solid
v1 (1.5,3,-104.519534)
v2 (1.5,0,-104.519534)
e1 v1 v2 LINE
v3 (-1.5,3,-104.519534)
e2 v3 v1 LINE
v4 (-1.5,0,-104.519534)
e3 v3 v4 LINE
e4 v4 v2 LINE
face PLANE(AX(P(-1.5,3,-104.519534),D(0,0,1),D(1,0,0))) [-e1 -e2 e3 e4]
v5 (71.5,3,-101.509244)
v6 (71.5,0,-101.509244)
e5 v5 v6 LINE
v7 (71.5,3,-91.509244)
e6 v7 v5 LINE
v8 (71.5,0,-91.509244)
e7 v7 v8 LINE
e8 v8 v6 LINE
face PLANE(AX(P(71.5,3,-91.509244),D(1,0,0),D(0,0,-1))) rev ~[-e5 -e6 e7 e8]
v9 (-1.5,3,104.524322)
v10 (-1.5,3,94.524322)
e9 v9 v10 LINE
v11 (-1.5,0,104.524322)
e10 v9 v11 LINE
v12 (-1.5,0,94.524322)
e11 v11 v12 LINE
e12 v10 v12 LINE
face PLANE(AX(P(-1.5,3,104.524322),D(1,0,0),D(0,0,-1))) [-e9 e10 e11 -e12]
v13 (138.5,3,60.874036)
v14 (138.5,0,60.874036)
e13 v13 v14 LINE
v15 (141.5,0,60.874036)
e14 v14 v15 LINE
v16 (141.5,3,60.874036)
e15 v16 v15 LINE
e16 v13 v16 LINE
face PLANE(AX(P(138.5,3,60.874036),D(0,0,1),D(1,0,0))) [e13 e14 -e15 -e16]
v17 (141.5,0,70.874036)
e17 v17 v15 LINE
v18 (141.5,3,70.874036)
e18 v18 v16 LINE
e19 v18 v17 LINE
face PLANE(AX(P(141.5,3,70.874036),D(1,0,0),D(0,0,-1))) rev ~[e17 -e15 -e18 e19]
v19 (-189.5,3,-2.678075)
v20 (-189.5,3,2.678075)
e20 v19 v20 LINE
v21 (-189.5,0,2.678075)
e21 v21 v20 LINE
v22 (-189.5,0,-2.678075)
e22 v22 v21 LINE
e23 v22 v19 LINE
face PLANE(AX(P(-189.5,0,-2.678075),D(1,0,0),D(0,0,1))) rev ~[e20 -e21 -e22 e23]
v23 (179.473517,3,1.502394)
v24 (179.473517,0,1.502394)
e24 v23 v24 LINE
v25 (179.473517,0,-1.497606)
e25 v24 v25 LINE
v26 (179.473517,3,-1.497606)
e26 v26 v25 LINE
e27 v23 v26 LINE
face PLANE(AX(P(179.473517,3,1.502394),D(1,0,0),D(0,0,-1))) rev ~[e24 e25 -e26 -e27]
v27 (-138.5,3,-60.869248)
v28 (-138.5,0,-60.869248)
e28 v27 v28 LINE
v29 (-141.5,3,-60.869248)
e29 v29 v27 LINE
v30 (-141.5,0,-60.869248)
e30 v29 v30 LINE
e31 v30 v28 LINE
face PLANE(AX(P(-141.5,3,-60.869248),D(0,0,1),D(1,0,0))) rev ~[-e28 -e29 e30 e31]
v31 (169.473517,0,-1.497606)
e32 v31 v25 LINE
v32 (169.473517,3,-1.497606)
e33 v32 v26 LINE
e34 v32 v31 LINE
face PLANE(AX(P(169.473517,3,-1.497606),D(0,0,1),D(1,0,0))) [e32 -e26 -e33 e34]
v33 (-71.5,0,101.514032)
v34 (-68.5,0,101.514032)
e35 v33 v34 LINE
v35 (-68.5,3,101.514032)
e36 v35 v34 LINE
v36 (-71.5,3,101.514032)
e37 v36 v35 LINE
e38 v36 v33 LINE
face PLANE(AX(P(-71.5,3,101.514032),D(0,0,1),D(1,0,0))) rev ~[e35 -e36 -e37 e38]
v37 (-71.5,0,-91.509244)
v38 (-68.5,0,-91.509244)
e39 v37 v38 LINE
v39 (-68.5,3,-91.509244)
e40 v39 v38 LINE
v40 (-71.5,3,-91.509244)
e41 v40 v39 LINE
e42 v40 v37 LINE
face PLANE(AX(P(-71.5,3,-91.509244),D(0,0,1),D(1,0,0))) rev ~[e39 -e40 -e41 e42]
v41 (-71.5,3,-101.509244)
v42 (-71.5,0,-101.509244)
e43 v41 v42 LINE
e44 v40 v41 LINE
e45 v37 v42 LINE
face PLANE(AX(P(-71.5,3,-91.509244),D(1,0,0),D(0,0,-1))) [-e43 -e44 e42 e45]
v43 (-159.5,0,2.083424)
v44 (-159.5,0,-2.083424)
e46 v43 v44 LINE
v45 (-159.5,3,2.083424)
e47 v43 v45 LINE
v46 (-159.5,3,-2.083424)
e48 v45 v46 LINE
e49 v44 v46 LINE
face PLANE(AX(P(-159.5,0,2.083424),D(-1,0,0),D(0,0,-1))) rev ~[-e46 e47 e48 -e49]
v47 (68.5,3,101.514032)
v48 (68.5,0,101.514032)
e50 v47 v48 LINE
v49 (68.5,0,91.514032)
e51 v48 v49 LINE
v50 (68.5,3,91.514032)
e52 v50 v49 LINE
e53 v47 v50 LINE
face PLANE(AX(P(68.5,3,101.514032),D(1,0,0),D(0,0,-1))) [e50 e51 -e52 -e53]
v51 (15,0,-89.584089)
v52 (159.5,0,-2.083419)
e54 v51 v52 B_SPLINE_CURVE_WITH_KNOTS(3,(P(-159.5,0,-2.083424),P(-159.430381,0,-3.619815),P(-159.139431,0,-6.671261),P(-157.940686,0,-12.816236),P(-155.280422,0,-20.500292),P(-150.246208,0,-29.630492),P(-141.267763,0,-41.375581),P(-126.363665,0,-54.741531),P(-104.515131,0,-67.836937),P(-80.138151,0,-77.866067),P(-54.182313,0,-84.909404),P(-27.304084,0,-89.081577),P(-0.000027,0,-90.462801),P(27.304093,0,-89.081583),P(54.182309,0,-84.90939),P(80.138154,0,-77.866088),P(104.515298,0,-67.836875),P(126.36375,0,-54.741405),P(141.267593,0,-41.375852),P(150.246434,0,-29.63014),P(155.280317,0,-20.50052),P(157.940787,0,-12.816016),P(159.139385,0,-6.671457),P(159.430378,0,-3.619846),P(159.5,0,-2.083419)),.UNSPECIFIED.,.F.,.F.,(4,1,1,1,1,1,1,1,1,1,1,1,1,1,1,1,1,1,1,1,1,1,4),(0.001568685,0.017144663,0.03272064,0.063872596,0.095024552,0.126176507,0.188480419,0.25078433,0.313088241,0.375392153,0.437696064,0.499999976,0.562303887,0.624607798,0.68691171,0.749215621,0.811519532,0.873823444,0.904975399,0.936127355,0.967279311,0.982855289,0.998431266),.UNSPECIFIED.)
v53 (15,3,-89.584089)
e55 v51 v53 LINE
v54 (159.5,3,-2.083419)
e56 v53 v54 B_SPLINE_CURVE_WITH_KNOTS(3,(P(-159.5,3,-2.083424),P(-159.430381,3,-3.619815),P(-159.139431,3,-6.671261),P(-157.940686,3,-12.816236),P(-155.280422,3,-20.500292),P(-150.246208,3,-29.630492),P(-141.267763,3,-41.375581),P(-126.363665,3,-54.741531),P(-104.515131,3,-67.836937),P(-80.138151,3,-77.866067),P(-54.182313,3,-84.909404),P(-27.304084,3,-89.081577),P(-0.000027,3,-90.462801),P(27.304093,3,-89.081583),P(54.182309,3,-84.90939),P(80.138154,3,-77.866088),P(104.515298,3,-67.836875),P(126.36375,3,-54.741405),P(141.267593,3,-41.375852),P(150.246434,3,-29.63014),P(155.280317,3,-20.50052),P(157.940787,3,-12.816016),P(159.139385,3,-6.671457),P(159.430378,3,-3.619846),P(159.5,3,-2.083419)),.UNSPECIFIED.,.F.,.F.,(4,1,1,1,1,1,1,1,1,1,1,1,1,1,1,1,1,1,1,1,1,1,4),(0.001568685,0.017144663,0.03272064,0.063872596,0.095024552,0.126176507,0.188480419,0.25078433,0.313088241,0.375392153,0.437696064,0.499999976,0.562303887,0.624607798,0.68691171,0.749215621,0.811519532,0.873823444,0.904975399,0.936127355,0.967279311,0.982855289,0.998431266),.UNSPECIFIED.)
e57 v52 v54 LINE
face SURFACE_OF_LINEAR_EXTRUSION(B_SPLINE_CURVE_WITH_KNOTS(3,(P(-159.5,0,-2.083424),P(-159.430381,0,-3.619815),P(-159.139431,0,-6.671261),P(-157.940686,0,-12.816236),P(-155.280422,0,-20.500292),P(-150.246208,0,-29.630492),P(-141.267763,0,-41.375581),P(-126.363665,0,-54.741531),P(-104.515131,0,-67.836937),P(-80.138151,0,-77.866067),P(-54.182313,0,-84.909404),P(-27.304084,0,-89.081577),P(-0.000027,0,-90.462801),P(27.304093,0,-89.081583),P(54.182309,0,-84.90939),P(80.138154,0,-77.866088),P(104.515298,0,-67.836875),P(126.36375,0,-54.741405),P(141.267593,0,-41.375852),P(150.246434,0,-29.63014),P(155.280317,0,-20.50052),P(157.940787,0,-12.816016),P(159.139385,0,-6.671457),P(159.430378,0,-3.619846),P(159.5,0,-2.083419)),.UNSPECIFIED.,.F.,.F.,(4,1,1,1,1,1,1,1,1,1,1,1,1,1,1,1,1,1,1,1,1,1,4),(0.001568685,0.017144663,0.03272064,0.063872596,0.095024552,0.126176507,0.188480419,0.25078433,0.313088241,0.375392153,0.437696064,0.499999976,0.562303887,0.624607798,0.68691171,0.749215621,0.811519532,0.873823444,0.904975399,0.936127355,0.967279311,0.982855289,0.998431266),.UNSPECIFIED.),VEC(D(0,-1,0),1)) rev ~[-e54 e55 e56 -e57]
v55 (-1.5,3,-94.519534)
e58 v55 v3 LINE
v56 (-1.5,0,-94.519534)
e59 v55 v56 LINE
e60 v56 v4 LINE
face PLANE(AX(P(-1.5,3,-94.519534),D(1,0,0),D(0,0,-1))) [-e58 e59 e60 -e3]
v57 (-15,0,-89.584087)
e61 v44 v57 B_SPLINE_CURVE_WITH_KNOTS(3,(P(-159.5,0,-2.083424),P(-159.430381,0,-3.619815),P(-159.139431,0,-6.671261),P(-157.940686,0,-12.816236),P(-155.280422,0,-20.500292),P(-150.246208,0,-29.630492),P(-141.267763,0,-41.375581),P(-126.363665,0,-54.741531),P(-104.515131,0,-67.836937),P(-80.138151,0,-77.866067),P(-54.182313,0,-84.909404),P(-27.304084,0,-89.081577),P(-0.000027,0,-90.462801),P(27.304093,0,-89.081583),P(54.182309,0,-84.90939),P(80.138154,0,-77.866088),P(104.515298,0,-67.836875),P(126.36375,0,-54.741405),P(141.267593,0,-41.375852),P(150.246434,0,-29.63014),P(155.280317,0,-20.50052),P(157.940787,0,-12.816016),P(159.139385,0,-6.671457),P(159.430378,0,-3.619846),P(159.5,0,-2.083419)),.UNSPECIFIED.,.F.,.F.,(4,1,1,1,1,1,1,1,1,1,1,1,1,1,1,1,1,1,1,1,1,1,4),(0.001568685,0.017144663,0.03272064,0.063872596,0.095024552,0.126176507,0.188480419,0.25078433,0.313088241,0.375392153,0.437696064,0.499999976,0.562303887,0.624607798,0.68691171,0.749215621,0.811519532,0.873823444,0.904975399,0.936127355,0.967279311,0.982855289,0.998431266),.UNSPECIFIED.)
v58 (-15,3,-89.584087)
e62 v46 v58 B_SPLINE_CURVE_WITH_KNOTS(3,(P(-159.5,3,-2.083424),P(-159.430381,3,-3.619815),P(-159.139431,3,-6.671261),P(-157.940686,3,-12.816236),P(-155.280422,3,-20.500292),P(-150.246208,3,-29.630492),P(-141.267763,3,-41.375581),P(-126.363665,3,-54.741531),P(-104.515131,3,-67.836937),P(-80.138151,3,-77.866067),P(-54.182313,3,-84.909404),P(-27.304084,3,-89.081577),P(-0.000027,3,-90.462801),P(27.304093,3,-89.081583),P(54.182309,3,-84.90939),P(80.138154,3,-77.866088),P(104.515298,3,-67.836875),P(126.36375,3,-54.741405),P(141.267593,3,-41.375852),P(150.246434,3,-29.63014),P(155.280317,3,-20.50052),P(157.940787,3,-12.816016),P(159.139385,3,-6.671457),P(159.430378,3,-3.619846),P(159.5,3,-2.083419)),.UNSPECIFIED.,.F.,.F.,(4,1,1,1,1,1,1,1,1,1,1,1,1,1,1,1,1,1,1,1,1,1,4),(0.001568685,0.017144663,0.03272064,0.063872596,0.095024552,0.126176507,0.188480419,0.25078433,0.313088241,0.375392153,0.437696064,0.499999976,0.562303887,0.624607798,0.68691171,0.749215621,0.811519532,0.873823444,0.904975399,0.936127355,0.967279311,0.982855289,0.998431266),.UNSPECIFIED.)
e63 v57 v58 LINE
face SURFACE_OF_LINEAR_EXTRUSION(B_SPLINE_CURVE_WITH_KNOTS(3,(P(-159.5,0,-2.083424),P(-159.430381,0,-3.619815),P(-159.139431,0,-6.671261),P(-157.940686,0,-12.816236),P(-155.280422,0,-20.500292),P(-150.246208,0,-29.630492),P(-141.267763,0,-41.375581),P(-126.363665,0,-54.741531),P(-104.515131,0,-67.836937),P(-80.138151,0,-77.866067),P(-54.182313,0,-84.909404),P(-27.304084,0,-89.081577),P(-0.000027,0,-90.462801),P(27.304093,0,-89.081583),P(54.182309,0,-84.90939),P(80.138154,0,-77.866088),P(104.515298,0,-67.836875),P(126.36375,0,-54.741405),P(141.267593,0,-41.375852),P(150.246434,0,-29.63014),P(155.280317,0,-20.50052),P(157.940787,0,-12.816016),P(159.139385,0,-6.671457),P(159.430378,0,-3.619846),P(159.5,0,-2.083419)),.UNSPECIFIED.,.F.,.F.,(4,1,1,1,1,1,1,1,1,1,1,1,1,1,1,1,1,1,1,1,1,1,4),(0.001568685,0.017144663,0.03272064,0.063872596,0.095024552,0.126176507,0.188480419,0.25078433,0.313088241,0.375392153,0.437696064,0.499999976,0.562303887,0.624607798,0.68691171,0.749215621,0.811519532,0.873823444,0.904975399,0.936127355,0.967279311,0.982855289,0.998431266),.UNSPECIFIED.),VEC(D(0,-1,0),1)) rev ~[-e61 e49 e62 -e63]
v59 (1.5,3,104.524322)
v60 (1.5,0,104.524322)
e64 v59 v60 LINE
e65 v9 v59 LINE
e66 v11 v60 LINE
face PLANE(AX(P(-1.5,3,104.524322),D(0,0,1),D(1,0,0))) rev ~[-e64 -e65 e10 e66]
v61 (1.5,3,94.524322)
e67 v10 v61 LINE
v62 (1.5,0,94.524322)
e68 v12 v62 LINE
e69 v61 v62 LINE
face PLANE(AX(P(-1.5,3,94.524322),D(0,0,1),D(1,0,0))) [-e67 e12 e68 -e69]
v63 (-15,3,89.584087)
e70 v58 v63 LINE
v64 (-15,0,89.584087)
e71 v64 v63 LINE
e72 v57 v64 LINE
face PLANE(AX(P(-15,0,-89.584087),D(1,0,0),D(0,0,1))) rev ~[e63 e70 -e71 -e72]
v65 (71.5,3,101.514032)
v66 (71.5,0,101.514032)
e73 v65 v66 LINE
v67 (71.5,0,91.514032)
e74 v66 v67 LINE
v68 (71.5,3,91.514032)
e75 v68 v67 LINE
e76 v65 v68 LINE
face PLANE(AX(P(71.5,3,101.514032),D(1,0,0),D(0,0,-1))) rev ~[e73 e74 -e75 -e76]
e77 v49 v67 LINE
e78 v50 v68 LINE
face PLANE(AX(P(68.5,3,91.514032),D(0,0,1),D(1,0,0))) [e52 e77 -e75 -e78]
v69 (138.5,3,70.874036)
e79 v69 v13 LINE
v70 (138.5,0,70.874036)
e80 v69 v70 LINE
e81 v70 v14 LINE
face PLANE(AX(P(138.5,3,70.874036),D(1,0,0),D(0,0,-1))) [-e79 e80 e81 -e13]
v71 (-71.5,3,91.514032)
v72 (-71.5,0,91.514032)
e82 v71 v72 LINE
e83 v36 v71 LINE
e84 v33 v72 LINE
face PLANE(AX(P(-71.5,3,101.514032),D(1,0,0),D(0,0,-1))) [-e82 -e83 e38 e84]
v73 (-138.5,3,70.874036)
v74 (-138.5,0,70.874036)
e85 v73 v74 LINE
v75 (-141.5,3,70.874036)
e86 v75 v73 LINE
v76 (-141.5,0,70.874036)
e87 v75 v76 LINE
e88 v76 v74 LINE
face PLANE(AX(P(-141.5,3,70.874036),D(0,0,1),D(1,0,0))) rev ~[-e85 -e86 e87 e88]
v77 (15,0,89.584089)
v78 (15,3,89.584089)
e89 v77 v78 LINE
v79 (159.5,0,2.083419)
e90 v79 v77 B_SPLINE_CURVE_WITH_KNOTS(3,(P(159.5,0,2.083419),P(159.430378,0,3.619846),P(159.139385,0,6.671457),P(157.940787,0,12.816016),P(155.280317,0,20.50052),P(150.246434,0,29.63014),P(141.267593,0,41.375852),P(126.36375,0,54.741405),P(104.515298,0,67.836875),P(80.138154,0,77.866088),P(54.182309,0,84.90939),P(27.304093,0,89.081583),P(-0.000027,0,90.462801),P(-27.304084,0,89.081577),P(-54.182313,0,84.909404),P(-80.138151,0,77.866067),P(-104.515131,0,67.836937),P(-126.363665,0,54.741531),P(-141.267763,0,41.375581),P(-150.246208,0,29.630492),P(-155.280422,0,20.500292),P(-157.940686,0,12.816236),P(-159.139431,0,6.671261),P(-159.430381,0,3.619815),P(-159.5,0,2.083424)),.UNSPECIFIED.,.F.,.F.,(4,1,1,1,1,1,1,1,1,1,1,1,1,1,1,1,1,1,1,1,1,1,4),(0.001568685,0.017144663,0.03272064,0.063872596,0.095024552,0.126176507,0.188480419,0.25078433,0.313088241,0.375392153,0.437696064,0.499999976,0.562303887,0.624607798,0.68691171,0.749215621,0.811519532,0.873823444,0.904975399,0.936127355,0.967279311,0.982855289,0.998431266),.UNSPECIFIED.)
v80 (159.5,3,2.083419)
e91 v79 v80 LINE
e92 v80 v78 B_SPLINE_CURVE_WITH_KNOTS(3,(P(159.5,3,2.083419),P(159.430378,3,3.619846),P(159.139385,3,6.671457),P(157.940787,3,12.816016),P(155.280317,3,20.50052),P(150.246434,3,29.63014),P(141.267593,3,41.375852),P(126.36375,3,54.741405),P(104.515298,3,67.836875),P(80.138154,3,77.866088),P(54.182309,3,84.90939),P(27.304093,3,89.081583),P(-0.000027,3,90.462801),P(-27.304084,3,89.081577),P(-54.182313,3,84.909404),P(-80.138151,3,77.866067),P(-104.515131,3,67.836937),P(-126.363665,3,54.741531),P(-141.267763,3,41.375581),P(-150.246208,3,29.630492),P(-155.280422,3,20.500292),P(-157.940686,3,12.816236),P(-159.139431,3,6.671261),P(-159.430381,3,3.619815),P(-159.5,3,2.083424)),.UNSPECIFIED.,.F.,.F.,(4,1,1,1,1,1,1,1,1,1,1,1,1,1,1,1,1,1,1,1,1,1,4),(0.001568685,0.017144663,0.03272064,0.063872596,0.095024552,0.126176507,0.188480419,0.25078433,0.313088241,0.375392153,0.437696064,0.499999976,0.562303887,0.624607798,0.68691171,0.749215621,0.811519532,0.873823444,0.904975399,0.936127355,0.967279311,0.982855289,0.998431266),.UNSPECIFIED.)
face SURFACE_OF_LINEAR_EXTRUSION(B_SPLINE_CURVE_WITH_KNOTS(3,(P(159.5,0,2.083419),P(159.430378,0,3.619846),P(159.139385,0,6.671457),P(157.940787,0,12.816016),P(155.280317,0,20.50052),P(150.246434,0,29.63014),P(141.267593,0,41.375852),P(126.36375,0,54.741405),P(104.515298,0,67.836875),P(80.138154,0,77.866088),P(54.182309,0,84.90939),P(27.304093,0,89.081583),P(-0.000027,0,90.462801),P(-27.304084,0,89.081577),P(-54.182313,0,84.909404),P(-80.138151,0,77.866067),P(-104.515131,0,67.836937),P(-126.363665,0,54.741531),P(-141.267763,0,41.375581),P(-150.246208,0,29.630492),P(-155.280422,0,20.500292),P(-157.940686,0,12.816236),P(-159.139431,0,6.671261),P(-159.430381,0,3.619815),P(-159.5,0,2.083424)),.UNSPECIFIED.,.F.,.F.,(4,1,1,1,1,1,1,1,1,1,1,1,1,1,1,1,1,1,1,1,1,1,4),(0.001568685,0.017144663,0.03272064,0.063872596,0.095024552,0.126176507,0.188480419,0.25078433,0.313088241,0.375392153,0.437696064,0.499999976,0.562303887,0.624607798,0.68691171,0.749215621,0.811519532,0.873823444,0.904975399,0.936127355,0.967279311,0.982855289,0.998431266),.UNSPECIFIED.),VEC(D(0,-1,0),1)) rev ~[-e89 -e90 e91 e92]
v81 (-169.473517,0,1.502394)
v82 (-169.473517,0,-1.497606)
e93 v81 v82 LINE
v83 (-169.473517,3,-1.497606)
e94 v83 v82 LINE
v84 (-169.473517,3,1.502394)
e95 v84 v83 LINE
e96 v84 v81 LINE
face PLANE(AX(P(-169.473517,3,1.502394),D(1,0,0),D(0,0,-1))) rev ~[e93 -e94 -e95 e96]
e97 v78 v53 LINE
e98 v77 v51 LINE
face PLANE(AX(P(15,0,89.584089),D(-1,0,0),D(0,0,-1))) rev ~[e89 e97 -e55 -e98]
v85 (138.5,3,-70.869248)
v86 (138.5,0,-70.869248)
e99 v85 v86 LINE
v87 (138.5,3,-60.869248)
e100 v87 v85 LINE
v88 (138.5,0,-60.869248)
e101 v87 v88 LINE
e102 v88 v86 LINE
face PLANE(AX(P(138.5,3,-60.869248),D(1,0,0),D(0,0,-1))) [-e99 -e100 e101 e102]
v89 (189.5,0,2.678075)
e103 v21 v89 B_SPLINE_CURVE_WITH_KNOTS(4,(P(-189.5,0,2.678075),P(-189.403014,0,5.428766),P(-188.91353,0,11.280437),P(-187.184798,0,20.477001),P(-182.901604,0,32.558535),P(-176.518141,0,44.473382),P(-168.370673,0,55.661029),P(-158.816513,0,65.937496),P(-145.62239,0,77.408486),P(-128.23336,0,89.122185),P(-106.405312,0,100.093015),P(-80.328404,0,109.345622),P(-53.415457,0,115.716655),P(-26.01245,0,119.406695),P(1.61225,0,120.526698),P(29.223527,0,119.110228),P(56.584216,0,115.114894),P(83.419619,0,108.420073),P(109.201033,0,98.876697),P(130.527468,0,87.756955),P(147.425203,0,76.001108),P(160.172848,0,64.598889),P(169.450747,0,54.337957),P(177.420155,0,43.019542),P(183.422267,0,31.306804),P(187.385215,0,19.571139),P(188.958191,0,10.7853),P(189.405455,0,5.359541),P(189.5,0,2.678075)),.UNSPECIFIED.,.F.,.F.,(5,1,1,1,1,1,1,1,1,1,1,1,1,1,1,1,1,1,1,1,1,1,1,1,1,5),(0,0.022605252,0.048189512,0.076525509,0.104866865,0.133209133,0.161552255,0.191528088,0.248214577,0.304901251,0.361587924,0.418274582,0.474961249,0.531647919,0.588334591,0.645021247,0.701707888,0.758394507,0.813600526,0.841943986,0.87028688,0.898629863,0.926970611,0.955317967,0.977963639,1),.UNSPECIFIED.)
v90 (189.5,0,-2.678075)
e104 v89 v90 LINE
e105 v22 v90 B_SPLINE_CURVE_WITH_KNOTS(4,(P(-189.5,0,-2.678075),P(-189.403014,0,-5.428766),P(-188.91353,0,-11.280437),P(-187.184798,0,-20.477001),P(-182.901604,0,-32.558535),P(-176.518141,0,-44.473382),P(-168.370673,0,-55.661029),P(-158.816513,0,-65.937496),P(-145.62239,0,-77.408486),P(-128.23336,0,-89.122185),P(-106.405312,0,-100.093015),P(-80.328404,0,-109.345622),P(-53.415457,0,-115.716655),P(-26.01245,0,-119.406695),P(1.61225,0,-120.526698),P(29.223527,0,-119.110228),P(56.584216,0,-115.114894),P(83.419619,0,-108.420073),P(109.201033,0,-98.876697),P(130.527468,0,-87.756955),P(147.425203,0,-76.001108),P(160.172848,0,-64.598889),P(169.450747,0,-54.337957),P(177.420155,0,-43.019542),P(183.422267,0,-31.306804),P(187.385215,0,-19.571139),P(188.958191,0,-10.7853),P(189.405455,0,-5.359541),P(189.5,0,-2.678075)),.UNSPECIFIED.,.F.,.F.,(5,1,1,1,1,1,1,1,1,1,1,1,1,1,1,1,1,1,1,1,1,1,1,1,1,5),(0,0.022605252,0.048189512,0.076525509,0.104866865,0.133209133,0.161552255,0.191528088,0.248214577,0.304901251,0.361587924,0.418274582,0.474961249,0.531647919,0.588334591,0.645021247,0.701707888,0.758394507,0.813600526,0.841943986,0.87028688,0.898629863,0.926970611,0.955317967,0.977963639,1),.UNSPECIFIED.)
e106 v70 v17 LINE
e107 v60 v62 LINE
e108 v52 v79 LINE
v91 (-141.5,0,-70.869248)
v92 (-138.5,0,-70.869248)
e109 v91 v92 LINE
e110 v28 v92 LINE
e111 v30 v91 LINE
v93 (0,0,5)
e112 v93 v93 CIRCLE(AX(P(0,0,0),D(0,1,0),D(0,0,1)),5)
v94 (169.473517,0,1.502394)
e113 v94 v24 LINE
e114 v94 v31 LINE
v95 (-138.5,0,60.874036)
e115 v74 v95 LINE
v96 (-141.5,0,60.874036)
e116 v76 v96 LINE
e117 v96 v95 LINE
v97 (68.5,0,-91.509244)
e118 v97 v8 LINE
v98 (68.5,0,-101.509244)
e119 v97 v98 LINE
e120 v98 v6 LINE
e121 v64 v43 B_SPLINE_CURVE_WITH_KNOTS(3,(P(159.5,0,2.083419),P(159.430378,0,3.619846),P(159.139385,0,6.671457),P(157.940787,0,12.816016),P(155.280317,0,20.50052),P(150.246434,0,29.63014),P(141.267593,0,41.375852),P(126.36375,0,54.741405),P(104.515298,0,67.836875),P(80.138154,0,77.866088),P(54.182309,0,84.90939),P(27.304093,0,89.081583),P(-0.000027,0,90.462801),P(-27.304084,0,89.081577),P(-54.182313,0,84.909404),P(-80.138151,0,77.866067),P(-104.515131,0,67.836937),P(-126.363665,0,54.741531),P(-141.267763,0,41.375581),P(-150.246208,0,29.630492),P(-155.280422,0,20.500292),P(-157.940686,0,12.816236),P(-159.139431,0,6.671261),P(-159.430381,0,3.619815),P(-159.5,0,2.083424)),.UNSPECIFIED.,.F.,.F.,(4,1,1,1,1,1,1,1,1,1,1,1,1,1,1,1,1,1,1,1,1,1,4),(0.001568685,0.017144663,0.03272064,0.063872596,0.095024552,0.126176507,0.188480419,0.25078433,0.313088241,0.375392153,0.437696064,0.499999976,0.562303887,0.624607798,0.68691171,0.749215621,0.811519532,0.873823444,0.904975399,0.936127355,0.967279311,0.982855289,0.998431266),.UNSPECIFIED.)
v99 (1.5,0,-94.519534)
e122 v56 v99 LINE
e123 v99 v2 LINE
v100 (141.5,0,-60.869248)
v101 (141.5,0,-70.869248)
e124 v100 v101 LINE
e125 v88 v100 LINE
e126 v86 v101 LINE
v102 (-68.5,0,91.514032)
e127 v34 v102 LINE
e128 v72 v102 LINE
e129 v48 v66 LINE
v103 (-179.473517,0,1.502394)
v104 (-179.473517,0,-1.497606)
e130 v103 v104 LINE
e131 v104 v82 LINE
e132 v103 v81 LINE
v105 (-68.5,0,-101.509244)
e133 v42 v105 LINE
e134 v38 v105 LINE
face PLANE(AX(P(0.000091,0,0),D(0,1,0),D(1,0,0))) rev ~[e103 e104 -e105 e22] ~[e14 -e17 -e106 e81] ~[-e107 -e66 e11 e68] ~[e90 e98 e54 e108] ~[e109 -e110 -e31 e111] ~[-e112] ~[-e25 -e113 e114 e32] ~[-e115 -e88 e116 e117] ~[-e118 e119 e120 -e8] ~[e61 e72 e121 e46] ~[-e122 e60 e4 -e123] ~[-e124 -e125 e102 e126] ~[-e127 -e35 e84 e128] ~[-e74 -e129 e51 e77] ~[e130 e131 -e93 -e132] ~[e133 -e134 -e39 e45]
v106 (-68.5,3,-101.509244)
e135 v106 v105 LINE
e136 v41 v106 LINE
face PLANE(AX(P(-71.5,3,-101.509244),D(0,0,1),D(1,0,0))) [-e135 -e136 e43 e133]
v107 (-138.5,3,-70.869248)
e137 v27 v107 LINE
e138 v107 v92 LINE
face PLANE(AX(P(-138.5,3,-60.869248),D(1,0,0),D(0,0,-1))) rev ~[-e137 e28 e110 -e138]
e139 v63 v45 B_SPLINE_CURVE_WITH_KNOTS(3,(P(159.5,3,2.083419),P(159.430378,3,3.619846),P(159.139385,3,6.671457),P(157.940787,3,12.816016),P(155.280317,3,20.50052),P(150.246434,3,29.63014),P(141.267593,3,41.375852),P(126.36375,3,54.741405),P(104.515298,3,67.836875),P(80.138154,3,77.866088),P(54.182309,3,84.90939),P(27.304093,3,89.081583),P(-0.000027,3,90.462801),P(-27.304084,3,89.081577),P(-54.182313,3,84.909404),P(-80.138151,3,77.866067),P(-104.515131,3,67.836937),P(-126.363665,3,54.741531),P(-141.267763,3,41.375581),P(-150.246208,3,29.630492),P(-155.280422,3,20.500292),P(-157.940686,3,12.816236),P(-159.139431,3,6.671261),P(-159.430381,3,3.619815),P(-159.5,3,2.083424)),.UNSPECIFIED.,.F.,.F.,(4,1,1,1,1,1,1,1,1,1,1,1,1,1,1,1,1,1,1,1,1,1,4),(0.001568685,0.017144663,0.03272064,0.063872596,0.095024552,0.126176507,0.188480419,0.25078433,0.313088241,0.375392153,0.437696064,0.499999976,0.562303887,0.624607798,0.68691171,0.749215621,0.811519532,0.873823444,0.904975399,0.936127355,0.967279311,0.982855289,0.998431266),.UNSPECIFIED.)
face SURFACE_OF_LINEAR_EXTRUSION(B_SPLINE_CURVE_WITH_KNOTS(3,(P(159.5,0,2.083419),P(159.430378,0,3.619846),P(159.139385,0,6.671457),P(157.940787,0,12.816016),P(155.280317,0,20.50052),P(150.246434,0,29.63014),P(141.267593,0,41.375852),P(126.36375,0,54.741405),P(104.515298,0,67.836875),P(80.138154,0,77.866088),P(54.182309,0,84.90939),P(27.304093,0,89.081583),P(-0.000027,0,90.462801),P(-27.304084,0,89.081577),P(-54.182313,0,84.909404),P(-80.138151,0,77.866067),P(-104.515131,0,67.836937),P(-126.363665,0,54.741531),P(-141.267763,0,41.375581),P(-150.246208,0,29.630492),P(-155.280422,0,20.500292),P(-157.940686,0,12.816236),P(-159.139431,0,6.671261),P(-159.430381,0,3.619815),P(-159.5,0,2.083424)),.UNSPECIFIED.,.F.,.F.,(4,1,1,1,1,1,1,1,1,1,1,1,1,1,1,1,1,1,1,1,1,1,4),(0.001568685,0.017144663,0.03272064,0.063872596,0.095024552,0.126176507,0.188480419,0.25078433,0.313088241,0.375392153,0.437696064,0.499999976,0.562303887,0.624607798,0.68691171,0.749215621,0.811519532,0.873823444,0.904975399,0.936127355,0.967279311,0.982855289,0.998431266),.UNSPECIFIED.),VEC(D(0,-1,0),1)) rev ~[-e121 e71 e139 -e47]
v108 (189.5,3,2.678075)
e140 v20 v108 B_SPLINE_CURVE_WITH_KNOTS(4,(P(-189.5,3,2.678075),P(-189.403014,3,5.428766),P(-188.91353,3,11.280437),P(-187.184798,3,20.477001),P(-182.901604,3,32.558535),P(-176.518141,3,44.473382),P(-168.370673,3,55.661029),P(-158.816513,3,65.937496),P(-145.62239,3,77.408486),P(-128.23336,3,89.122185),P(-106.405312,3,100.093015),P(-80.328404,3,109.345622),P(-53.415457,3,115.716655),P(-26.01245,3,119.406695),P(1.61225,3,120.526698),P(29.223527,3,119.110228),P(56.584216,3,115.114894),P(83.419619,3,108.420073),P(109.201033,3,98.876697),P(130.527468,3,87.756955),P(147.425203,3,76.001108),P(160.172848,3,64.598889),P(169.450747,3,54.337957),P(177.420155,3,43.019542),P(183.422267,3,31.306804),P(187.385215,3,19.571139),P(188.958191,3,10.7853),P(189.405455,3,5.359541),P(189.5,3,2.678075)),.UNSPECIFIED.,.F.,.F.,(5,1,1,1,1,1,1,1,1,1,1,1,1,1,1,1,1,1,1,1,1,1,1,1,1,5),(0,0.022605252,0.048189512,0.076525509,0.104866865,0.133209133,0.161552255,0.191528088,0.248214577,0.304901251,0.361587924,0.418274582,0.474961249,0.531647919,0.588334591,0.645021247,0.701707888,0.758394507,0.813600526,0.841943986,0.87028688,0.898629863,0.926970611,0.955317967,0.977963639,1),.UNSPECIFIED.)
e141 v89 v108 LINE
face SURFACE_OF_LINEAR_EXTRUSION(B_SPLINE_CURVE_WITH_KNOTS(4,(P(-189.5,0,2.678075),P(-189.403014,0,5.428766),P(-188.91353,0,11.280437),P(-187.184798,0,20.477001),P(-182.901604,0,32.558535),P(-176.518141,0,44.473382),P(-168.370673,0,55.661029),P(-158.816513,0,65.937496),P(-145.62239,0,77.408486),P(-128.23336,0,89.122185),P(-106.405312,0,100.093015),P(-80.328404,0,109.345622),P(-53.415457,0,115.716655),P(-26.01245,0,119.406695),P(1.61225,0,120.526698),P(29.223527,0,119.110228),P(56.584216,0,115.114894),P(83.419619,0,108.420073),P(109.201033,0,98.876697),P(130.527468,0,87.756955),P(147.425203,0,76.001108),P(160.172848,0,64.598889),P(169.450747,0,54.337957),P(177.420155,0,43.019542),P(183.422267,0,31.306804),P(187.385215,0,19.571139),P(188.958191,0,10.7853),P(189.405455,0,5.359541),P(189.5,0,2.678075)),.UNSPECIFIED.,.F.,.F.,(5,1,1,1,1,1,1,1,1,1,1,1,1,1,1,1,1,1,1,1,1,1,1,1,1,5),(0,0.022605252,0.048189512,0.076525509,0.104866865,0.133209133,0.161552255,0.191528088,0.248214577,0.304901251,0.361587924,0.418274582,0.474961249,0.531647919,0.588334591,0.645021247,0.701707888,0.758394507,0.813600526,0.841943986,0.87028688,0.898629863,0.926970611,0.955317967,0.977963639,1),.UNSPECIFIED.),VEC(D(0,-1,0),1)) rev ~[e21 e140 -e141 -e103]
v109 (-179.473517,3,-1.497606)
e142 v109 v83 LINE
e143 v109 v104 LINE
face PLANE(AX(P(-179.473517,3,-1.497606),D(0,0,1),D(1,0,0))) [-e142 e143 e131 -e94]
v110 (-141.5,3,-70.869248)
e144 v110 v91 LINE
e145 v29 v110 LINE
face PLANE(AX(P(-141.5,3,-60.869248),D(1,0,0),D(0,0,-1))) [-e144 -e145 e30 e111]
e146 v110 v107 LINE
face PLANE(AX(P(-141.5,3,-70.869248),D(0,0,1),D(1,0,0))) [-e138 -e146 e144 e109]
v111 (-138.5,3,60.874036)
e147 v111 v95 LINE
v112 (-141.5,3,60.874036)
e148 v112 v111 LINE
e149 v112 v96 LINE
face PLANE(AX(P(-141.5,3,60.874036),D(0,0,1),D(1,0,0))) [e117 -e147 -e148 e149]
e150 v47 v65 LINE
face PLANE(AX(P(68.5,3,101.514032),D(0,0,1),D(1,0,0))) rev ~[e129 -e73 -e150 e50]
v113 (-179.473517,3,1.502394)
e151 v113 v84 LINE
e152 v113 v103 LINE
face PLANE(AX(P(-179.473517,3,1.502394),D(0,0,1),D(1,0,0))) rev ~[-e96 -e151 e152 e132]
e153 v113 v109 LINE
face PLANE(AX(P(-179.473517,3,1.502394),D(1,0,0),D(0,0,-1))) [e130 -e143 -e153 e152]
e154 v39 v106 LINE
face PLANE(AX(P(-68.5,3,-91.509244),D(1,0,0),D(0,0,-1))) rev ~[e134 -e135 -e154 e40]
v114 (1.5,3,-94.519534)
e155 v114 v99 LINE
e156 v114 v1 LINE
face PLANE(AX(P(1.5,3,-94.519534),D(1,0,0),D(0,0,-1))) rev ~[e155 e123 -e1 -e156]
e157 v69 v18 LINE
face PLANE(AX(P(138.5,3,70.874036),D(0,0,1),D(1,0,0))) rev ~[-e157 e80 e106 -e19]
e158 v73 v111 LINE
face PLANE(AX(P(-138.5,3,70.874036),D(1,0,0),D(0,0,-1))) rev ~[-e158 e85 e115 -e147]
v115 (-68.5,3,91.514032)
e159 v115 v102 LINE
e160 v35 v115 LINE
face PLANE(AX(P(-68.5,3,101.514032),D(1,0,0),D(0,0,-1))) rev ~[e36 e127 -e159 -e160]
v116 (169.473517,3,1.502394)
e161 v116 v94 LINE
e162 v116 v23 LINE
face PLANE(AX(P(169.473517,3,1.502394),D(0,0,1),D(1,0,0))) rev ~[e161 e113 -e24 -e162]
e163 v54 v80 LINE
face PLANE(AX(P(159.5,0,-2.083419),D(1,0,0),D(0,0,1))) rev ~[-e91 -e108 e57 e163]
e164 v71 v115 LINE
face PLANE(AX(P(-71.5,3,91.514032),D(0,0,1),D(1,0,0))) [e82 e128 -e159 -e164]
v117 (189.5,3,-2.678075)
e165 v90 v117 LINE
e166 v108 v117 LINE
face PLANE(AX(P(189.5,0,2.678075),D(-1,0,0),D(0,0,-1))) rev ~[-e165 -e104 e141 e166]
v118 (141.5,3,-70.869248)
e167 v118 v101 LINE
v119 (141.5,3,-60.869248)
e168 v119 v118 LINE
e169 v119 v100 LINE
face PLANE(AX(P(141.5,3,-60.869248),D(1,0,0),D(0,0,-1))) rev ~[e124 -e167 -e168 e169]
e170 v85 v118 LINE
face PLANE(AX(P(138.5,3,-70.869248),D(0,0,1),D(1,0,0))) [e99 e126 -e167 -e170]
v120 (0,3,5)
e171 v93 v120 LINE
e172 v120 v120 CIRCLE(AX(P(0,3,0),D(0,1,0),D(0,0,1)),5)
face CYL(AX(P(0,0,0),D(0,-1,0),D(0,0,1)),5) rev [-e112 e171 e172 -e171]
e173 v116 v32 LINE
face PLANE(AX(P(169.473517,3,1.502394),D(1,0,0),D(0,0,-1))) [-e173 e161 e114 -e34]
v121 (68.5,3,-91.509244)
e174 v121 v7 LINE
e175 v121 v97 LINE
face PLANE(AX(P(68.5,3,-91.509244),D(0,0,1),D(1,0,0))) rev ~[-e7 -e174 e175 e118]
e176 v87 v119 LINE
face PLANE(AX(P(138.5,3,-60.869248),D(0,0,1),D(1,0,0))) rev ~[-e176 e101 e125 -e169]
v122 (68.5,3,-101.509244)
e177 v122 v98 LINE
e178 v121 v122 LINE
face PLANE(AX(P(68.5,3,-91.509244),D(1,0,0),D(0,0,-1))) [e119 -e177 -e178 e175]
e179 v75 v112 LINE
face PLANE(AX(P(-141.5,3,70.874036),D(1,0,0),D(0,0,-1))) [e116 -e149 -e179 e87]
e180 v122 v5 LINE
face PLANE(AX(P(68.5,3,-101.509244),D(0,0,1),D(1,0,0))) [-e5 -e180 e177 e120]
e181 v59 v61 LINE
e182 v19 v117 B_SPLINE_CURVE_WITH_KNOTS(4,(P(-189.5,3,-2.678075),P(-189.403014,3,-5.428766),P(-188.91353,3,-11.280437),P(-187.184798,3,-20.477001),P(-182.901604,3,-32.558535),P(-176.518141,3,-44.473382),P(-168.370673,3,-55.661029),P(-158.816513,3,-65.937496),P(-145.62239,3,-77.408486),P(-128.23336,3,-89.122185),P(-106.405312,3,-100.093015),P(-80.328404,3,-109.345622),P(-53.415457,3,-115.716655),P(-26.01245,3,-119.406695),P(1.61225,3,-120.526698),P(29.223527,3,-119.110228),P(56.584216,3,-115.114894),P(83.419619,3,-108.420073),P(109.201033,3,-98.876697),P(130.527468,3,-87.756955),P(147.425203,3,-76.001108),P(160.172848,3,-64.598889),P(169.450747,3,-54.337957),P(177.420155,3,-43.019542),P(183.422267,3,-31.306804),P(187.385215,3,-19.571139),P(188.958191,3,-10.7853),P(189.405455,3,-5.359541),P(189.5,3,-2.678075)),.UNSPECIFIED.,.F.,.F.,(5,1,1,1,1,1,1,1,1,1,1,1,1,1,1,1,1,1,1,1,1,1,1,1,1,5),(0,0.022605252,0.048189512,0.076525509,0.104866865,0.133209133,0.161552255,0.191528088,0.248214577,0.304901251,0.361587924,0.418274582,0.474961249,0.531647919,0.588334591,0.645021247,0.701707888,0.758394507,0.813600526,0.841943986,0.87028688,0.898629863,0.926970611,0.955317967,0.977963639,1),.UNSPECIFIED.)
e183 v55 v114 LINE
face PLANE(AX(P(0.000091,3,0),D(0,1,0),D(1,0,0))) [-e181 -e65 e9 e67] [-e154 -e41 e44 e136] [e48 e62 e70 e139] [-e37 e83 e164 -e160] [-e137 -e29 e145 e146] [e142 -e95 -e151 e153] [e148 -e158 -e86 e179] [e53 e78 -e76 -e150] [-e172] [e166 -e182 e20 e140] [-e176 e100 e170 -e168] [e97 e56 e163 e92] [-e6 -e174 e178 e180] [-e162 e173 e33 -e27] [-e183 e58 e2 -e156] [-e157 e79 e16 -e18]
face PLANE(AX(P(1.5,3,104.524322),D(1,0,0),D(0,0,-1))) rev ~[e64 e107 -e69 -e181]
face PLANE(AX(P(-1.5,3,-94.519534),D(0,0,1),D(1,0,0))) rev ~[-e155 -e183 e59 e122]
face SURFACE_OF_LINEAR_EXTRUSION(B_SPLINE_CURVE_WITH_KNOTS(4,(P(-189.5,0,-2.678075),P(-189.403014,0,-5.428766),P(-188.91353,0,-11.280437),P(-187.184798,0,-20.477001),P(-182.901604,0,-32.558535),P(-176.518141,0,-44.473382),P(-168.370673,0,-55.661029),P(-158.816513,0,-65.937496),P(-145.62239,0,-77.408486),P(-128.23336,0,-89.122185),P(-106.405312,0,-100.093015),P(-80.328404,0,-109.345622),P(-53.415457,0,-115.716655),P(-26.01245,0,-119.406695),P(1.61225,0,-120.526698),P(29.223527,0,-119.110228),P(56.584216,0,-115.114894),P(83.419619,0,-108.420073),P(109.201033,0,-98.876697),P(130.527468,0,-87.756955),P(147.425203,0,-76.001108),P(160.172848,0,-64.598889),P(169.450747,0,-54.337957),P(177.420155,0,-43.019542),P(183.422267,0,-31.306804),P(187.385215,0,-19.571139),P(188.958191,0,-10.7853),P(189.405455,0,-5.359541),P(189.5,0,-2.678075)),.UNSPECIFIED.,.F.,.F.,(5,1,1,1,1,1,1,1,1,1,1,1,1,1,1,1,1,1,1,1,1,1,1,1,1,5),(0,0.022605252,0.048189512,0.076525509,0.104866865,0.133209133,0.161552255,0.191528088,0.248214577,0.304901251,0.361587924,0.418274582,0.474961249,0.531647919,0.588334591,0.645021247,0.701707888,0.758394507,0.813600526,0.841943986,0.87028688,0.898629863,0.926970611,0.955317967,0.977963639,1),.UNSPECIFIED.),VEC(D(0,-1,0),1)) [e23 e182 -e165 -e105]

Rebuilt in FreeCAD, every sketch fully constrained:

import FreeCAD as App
import Part
import Sketcher
from FreeCAD import Vector

doc = App.newDocument("Part")
params = doc.addObject("Spreadsheet::Sheet", "Params")
for row, (alias, value) in enumerate([
    ("sketch1_diameter", "10 mm"),
    ("pad1_length", "3 mm"),
    ("sketch2_width", "3 mm"),
    ("sketch2_width2", "10 mm"),
], start=1):
    params.set(f"A{row}", alias)
    params.set(f"B{row}", "=" + value)
    params.setAlias(f"B{row}", alias)

body = doc.addObject("PartDesign::Body", "Body")

# Sketch on XZ plane
sketch1 = body.newObject("Sketcher::SketchObject", "Sketch")
sketch1.AttachmentSupport = (doc.getObject("XZ_Plane"), [""])
sketch1.MapMode = "FlatFace"
sketch1.addGeometry([
    Part.LineSegment(Vector(-189.5, -2.678075, 0), Vector(-189.5, 2.678075, 0)),  # 0
    Part.BSplineCurve([Vector(-189.5, 2.678075, 0), Vector(-189.403014, 5.428766, 0), Vector(-188.91353, 11.280437, 0), Vector(-187.184798, 20.477001, 0), Vector(-182.901604, 32.558535, 0), Vector(-176.518141, 44.473382, 0), Vector(-168.370673, 55.661029, 0), Vector(-158.816513, 65.937496, 0), Vector(-145.62239, 77.408486, 0), Vector(-128.23336, 89.122185, 0), Vector(-106.405312, 100.093015, 0), Vector(-80.328404, 109.345622, 0), Vector(-53.415457, 115.716655, 0), Vector(-26.01245, 119.406695, 0), Vector(1.61225, 120.526698, 0), Vector(29.223527, 119.110228, 0), Vector(56.584216, 115.114894, 0), Vector(83.419619, 108.420073, 0), Vector(109.201033, 98.876697, 0), Vector(130.527468, 87.756955, 0), Vector(147.425203, 76.001108, 0), Vector(160.172848, 64.598889, 0), Vector(169.450747, 54.337957, 0), Vector(177.420155, 43.019542, 0), Vector(183.422267, 31.306804, 0), Vector(187.385215, 19.571139, 0), Vector(188.958191, 10.7853, 0), Vector(189.405455, 5.359541, 0), Vector(189.5, 2.678075, 0)], [5, 1, 1, 1, 1, 1, 1, 1, 1, 1, 1, 1, 1, 1, 1, 1, 1, 1, 1, 1, 1, 1, 1, 1, 1, 5], [0, 0.022605252, 0.048189512, 0.076525509, 0.104866865, 0.133209133, 0.161552255, 0.191528088, 0.248214577, 0.304901251, 0.361587924, 0.418274582, 0.474961249, 0.531647919, 0.588334591, 0.645021247, 0.701707888, 0.758394507, 0.813600526, 0.841943986, 0.87028688, 0.898629863, 0.926970611, 0.955317967, 0.977963639, 1], False, 4, [1, 1, 1, 1, 1, 1, 1, 1, 1, 1, 1, 1, 1, 1, 1, 1, 1, 1, 1, 1, 1, 1, 1, 1, 1, 1, 1, 1, 1], False),  # 1
    Part.LineSegment(Vector(189.5, 2.678075, 0), Vector(189.5, -2.678075, 0)),  # 2
    Part.BSplineCurve([Vector(-189.5, -2.678075, 0), Vector(-189.403014, -5.428766, 0), Vector(-188.91353, -11.280437, 0), Vector(-187.184798, -20.477001, 0), Vector(-182.901604, -32.558535, 0), Vector(-176.518141, -44.473382, 0), Vector(-168.370673, -55.661029, 0), Vector(-158.816513, -65.937496, 0), Vector(-145.62239, -77.408486, 0), Vector(-128.23336, -89.122185, 0), Vector(-106.405312, -100.093015, 0), Vector(-80.328404, -109.345622, 0), Vector(-53.415457, -115.716655, 0), Vector(-26.01245, -119.406695, 0), Vector(1.61225, -120.526698, 0), Vector(29.223527, -119.110228, 0), Vector(56.584216, -115.114894, 0), Vector(83.419619, -108.420073, 0), Vector(109.201033, -98.876697, 0), Vector(130.527468, -87.756955, 0), Vector(147.425203, -76.001108, 0), Vector(160.172848, -64.598889, 0), Vector(169.450747, -54.337957, 0), Vector(177.420155, -43.019542, 0), Vector(183.422267, -31.306804, 0), Vector(187.385215, -19.571139, 0), Vector(188.958191, -10.7853, 0), Vector(189.405455, -5.359541, 0), Vector(189.5, -2.678075, 0)], [5, 1, 1, 1, 1, 1, 1, 1, 1, 1, 1, 1, 1, 1, 1, 1, 1, 1, 1, 1, 1, 1, 1, 1, 1, 5], [0, 0.022605252, 0.048189512, 0.076525509, 0.104866865, 0.133209133, 0.161552255, 0.191528088, 0.248214577, 0.304901251, 0.361587924, 0.418274582, 0.474961249, 0.531647919, 0.588334591, 0.645021247, 0.701707888, 0.758394507, 0.813600526, 0.841943986, 0.87028688, 0.898629863, 0.926970611, 0.955317967, 0.977963639, 1], False, 4, [1, 1, 1, 1, 1, 1, 1, 1, 1, 1, 1, 1, 1, 1, 1, 1, 1, 1, 1, 1, 1, 1, 1, 1, 1, 1, 1, 1, 1], False),  # 3
    Part.BSplineCurve([Vector(-159.5, -2.083424, 0), Vector(-159.430381, -3.619815, 0), Vector(-159.139431, -6.671261, 0), Vector(-157.940686, -12.816236, 0), Vector(-155.280422, -20.500292, 0), Vector(-150.246208, -29.630492, 0), Vector(-141.267763, -41.375581, 0), Vector(-126.363665, -54.741531, 0), Vector(-104.515131, -67.836937, 0), Vector(-80.138151, -77.866067, 0), Vector(-54.182313, -84.909404, 0), Vector(-32.229967, -88.316957, 0), Vector(-19.087772, -89.35552, 0), Vector(-15, -89.584087, 0)], [4, 1, 1, 1, 1, 1, 1, 1, 1, 1, 1, 4], [0.001568685, 0.017144663, 0.03272064, 0.063872596, 0.095024552, 0.126176507, 0.188480419, 0.25078433, 0.313088241, 0.375392153, 0.437696064, 0.465745288], False, 3, [1, 1, 1, 1, 1, 1, 1, 1, 1, 1, 1, 1, 1, 1], False),  # 4
    Part.LineSegment(Vector(-15, -89.584087, 0), Vector(-15, 89.584087, 0)),  # 5
    Part.BSplineCurve([Vector(-15, 89.584087, 0), Vector(-19.087772, 89.35552, 0), Vector(-32.229967, 88.316957, 0), Vector(-54.182313, 84.909404, 0), Vector(-80.138151, 77.866067, 0), Vector(-104.515131, 67.836937, 0), Vector(-126.363665, 54.741531, 0), Vector(-141.267763, 41.375581, 0), Vector(-150.246208, 29.630492, 0), Vector(-155.280422, 20.500292, 0), Vector(-157.940686, 12.816236, 0), Vector(-159.139431, 6.671261, 0), Vector(-159.430381, 3.619815, 0), Vector(-159.5, 2.083424, 0)], [4, 1, 1, 1, 1, 1, 1, 1, 1, 1, 1, 4], [0.534254663, 0.562303887, 0.624607798, 0.68691171, 0.749215621, 0.811519532, 0.873823444, 0.904975399, 0.936127355, 0.967279311, 0.982855289, 0.998431266], False, 3, [1, 1, 1, 1, 1, 1, 1, 1, 1, 1, 1, 1, 1, 1], False),  # 6
    Part.LineSegment(Vector(-159.5, 2.083424, 0), Vector(-159.5, -2.083424, 0)),  # 7
    Part.BSplineCurve([Vector(15, -89.584089, 0), Vector(19.087771, -89.355522, 0), Vector(32.22998, -88.316958, 0), Vector(54.182309, -84.90939, 0), Vector(80.138154, -77.866088, 0), Vector(104.515298, -67.836875, 0), Vector(126.36375, -54.741405, 0), Vector(141.267593, -41.375852, 0), Vector(150.246434, -29.63014, 0), Vector(155.280317, -20.50052, 0), Vector(157.940787, -12.816016, 0), Vector(159.139385, -6.671457, 0), Vector(159.430378, -3.619846, 0), Vector(159.5, -2.083419, 0)], [4, 1, 1, 1, 1, 1, 1, 1, 1, 1, 1, 4], [0.534254707, 0.562303887, 0.624607798, 0.68691171, 0.749215621, 0.811519532, 0.873823444, 0.904975399, 0.936127355, 0.967279311, 0.982855289, 0.998431266], False, 3, [1, 1, 1, 1, 1, 1, 1, 1, 1, 1, 1, 1, 1, 1], False),  # 8
    Part.LineSegment(Vector(159.5, -2.083419, 0), Vector(159.5, 2.083419, 0)),  # 9
    Part.BSplineCurve([Vector(159.5, 2.083419, 0), Vector(159.430378, 3.619846, 0), Vector(159.139385, 6.671457, 0), Vector(157.940787, 12.816016, 0), Vector(155.280317, 20.50052, 0), Vector(150.246434, 29.63014, 0), Vector(141.267593, 41.375852, 0), Vector(126.36375, 54.741405, 0), Vector(104.515298, 67.836875, 0), Vector(80.138154, 77.866088, 0), Vector(54.182309, 84.90939, 0), Vector(32.22998, 88.316958, 0), Vector(19.087771, 89.355522, 0), Vector(15, 89.584089, 0)], [4, 1, 1, 1, 1, 1, 1, 1, 1, 1, 1, 4], [0.001568685, 0.017144663, 0.03272064, 0.063872596, 0.095024552, 0.126176507, 0.188480419, 0.25078433, 0.313088241, 0.375392153, 0.437696064, 0.465745244], False, 3, [1, 1, 1, 1, 1, 1, 1, 1, 1, 1, 1, 1, 1, 1], False),  # 10
    Part.LineSegment(Vector(15, 89.584089, 0), Vector(15, -89.584089, 0)),  # 11
    Part.Circle(Vector(0, 0, 0), Vector(0, 0, 1), 5),  # 12
], False)
sketch1.addConstraint([
    Sketcher.Constraint("Block", 1),
    Sketcher.Constraint("Block", 3),
    Sketcher.Constraint("Block", 4),
    Sketcher.Constraint("Block", 6),
    Sketcher.Constraint("Block", 8),
    Sketcher.Constraint("Block", 10),
    Sketcher.Constraint("Coincident", 0, 2, 1, 1),
    Sketcher.Constraint("Coincident", 1, 2, 2, 1),
    Sketcher.Constraint("Coincident", 2, 2, 3, 2),
    Sketcher.Constraint("Coincident", 3, 1, 0, 1),
    Sketcher.Constraint("Coincident", 4, 2, 5, 1),
    Sketcher.Constraint("Coincident", 5, 2, 6, 1),
    Sketcher.Constraint("Coincident", 6, 2, 7, 1),
    Sketcher.Constraint("Coincident", 7, 2, 4, 1),
    Sketcher.Constraint("Coincident", 8, 2, 9, 1),
    Sketcher.Constraint("Coincident", 9, 2, 10, 1),
    Sketcher.Constraint("Coincident", 10, 2, 11, 1),
    Sketcher.Constraint("Coincident", 11, 2, 8, 1),
    Sketcher.Constraint("Coincident", 12, 3, -1, 1),
    Sketcher.Constraint("Diameter", 12, 10.0),
])
sketch1.setExpression("Constraints[19]", "Params.sketch1_diameter")
pad1 = body.newObject("PartDesign::Pad", "Pad")
pad1.Profile = sketch1
pad1.setExpression("Length", "Params.pad1_length")
pad1.Reversed = True

# Sketch on XZ plane
sketch2 = body.newObject("Sketcher::SketchObject", "Sketch001")
sketch2.AttachmentSupport = (doc.getObject("XZ_Plane"), [""])
sketch2.MapMode = "FlatFace"
sketch2.AttachmentOffset = App.Placement(Vector(0, 0, -3), App.Rotation())
sketch2.addGeometry([
    Part.LineSegment(Vector(138.5, 60.9, 0), Vector(138.5, 70.9, 0)),  # 0
    Part.LineSegment(Vector(138.5, 70.9, 0), Vector(141.5, 70.9, 0)),  # 1
    Part.LineSegment(Vector(141.5, 70.9, 0), Vector(141.5, 60.9, 0)),  # 2
    Part.LineSegment(Vector(141.5, 60.9, 0), Vector(138.5, 60.9, 0)),  # 3
    Part.LineSegment(Vector(169.5, -1.5, 0), Vector(169.5, 1.5, 0)),  # 4
    Part.LineSegment(Vector(169.5, 1.5, 0), Vector(179.5, 1.5, 0)),  # 5
    Part.LineSegment(Vector(179.5, 1.5, 0), Vector(179.5, -1.5, 0)),  # 6
    Part.LineSegment(Vector(179.5, -1.5, 0), Vector(169.5, -1.5, 0)),  # 7
    Part.LineSegment(Vector(138.5, -70.9, 0), Vector(138.5, -60.9, 0)),  # 8
    Part.LineSegment(Vector(138.5, -60.9, 0), Vector(141.5, -60.9, 0)),  # 9
    Part.LineSegment(Vector(141.5, -60.9, 0), Vector(141.5, -70.9, 0)),  # 10
    Part.LineSegment(Vector(141.5, -70.9, 0), Vector(138.5, -70.9, 0)),  # 11
    Part.LineSegment(Vector(68.5, 91.5, 0), Vector(68.5, 101.5, 0)),  # 12
    Part.LineSegment(Vector(68.5, 101.5, 0), Vector(71.5, 101.5, 0)),  # 13
    Part.LineSegment(Vector(71.5, 101.5, 0), Vector(71.5, 91.5, 0)),  # 14
    Part.LineSegment(Vector(71.5, 91.5, 0), Vector(68.5, 91.5, 0)),  # 15
    Part.LineSegment(Vector(68.5, -101.5, 0), Vector(68.5, -91.5, 0)),  # 16
    Part.LineSegment(Vector(68.5, -91.5, 0), Vector(71.5, -91.5, 0)),  # 17
    Part.LineSegment(Vector(71.5, -91.5, 0), Vector(71.5, -101.5, 0)),  # 18
    Part.LineSegment(Vector(71.5, -101.5, 0), Vector(68.5, -101.5, 0)),  # 19
    Part.LineSegment(Vector(-1.5, -104.5, 0), Vector(-1.5, -94.5, 0)),  # 20
    Part.LineSegment(Vector(-1.5, -94.5, 0), Vector(1.5, -94.5, 0)),  # 21
    Part.LineSegment(Vector(1.5, -94.5, 0), Vector(1.5, -104.5, 0)),  # 22
    Part.LineSegment(Vector(1.5, -104.5, 0), Vector(-1.5, -104.5, 0)),  # 23
    Part.LineSegment(Vector(-1.5, 94.5, 0), Vector(-1.5, 104.5, 0)),  # 24
    Part.LineSegment(Vector(-1.5, 104.5, 0), Vector(1.5, 104.5, 0)),  # 25
    Part.LineSegment(Vector(1.5, 104.5, 0), Vector(1.5, 94.5, 0)),  # 26
    Part.LineSegment(Vector(1.5, 94.5, 0), Vector(-1.5, 94.5, 0)),  # 27
    Part.LineSegment(Vector(-71.5, 91.5, 0), Vector(-71.5, 101.5, 0)),  # 28
    Part.LineSegment(Vector(-71.5, 101.5, 0), Vector(-68.5, 101.5, 0)),  # 29
    Part.LineSegment(Vector(-68.5, 101.5, 0), Vector(-68.5, 91.5, 0)),  # 30
    Part.LineSegment(Vector(-68.5, 91.5, 0), Vector(-71.5, 91.5, 0)),  # 31
    Part.LineSegment(Vector(-141.5, 60.9, 0), Vector(-141.5, 70.9, 0)),  # 32
    Part.LineSegment(Vector(-141.5, 70.9, 0), Vector(-138.5, 70.9, 0)),  # 33
    Part.LineSegment(Vector(-138.5, 70.9, 0), Vector(-138.5, 60.9, 0)),  # 34
    Part.LineSegment(Vector(-138.5, 60.9, 0), Vector(-141.5, 60.9, 0)),  # 35
    Part.LineSegment(Vector(-179.5, -1.5, 0), Vector(-179.5, 1.5, 0)),  # 36
    Part.LineSegment(Vector(-179.5, 1.5, 0), Vector(-169.5, 1.5, 0)),  # 37
    Part.LineSegment(Vector(-169.5, 1.5, 0), Vector(-169.5, -1.5, 0)),  # 38
    Part.LineSegment(Vector(-169.5, -1.5, 0), Vector(-179.5, -1.5, 0)),  # 39
    Part.LineSegment(Vector(-141.5, -70.9, 0), Vector(-141.5, -60.9, 0)),  # 40
    Part.LineSegment(Vector(-141.5, -60.9, 0), Vector(-138.5, -60.9, 0)),  # 41
    Part.LineSegment(Vector(-138.5, -60.9, 0), Vector(-138.5, -70.9, 0)),  # 42
    Part.LineSegment(Vector(-138.5, -70.9, 0), Vector(-141.5, -70.9, 0)),  # 43
    Part.LineSegment(Vector(-71.5, -101.5, 0), Vector(-71.5, -91.5, 0)),  # 44
    Part.LineSegment(Vector(-71.5, -91.5, 0), Vector(-68.5, -91.5, 0)),  # 45
    Part.LineSegment(Vector(-68.5, -91.5, 0), Vector(-68.5, -101.5, 0)),  # 46
    Part.LineSegment(Vector(-68.5, -101.5, 0), Vector(-71.5, -101.5, 0)),  # 47
], False)
sketch2.addConstraint([
    Sketcher.Constraint("Coincident", 0, 2, 1, 1),
    Sketcher.Constraint("Coincident", 1, 2, 2, 1),
    Sketcher.Constraint("Coincident", 2, 2, 3, 1),
    Sketcher.Constraint("Coincident", 3, 2, 0, 1),
    Sketcher.Constraint("Coincident", 4, 2, 5, 1),
    Sketcher.Constraint("Coincident", 5, 2, 6, 1),
    Sketcher.Constraint("Coincident", 6, 2, 7, 1),
    Sketcher.Constraint("Coincident", 7, 2, 4, 1),
    Sketcher.Constraint("Coincident", 8, 2, 9, 1),
    Sketcher.Constraint("Coincident", 9, 2, 10, 1),
    Sketcher.Constraint("Coincident", 10, 2, 11, 1),
    Sketcher.Constraint("Coincident", 11, 2, 8, 1),
    Sketcher.Constraint("Coincident", 12, 2, 13, 1),
    Sketcher.Constraint("Coincident", 13, 2, 14, 1),
    Sketcher.Constraint("Coincident", 14, 2, 15, 1),
    Sketcher.Constraint("Coincident", 15, 2, 12, 1),
    Sketcher.Constraint("Coincident", 16, 2, 17, 1),
    Sketcher.Constraint("Coincident", 17, 2, 18, 1),
    Sketcher.Constraint("Coincident", 18, 2, 19, 1),
    Sketcher.Constraint("Coincident", 19, 2, 16, 1),
    Sketcher.Constraint("Coincident", 20, 2, 21, 1),
    Sketcher.Constraint("Coincident", 21, 2, 22, 1),
    Sketcher.Constraint("Coincident", 22, 2, 23, 1),
    Sketcher.Constraint("Coincident", 23, 2, 20, 1),
    Sketcher.Constraint("Coincident", 24, 2, 25, 1),
    Sketcher.Constraint("Coincident", 25, 2, 26, 1),
    Sketcher.Constraint("Coincident", 26, 2, 27, 1),
    Sketcher.Constraint("Coincident", 27, 2, 24, 1),
    Sketcher.Constraint("Coincident", 28, 2, 29, 1),
    Sketcher.Constraint("Coincident", 29, 2, 30, 1),
    Sketcher.Constraint("Coincident", 30, 2, 31, 1),
    Sketcher.Constraint("Coincident", 31, 2, 28, 1),
    Sketcher.Constraint("Coincident", 32, 2, 33, 1),
    Sketcher.Constraint("Coincident", 33, 2, 34, 1),
    Sketcher.Constraint("Coincident", 34, 2, 35, 1),
    Sketcher.Constraint("Coincident", 35, 2, 32, 1),
    Sketcher.Constraint("Coincident", 36, 2, 37, 1),
    Sketcher.Constraint("Coincident", 37, 2, 38, 1),
    Sketcher.Constraint("Coincident", 38, 2, 39, 1),
    Sketcher.Constraint("Coincident", 39, 2, 36, 1),
    Sketcher.Constraint("Coincident", 40, 2, 41, 1),
    Sketcher.Constraint("Coincident", 41, 2, 42, 1),
    Sketcher.Constraint("Coincident", 42, 2, 43, 1),
    Sketcher.Constraint("Coincident", 43, 2, 40, 1),
    Sketcher.Constraint("Coincident", 44, 2, 45, 1),
    Sketcher.Constraint("Coincident", 45, 2, 46, 1),
    Sketcher.Constraint("Coincident", 46, 2, 47, 1),
    Sketcher.Constraint("Coincident", 47, 2, 44, 1),
    Sketcher.Constraint("Vertical", 0),
    Sketcher.Constraint("Horizontal", 1),
    Sketcher.Constraint("Vertical", 2),
    Sketcher.Constraint("Horizontal", 3),
    Sketcher.Constraint("Vertical", 4),
    Sketcher.Constraint("Horizontal", 5),
    Sketcher.Constraint("Vertical", 6),
    Sketcher.Constraint("Horizontal", 7),
    Sketcher.Constraint("Vertical", 8),
    Sketcher.Constraint("Horizontal", 9),
    Sketcher.Constraint("Vertical", 10),
    Sketcher.Constraint("Horizontal", 11),
    Sketcher.Constraint("Vertical", 12),
    Sketcher.Constraint("Horizontal", 13),
    Sketcher.Constraint("Vertical", 14),
    Sketcher.Constraint("Horizontal", 15),
    Sketcher.Constraint("Vertical", 16),
    Sketcher.Constraint("Horizontal", 17),
    Sketcher.Constraint("Vertical", 18),
    Sketcher.Constraint("Horizontal", 19),
    Sketcher.Constraint("Vertical", 20),
    Sketcher.Constraint("Horizontal", 21),
    Sketcher.Constraint("Vertical", 22),
    Sketcher.Constraint("Horizontal", 23),
    Sketcher.Constraint("Vertical", 24),
    Sketcher.Constraint("Horizontal", 25),
    Sketcher.Constraint("Vertical", 26),
    Sketcher.Constraint("Horizontal", 27),
    Sketcher.Constraint("Vertical", 28),
    Sketcher.Constraint("Horizontal", 29),
    Sketcher.Constraint("Vertical", 30),
    Sketcher.Constraint("Horizontal", 31),
    Sketcher.Constraint("Vertical", 32),
    Sketcher.Constraint("Horizontal", 33),
    Sketcher.Constraint("Vertical", 34),
    Sketcher.Constraint("Horizontal", 35),
    Sketcher.Constraint("Vertical", 36),
    Sketcher.Constraint("Horizontal", 37),
    Sketcher.Constraint("Vertical", 38),
    Sketcher.Constraint("Horizontal", 39),
    Sketcher.Constraint("Vertical", 40),
    Sketcher.Constraint("Horizontal", 41),
    Sketcher.Constraint("Vertical", 42),
    Sketcher.Constraint("Horizontal", 43),
    Sketcher.Constraint("Vertical", 44),
    Sketcher.Constraint("Horizontal", 45),
    Sketcher.Constraint("Vertical", 46),
    Sketcher.Constraint("Horizontal", 47),
    Sketcher.Constraint("Symmetric", 13, 2, 28, 2, -2),
    Sketcher.Constraint("Symmetric", 15, 2, 30, 2, -2),
    Sketcher.Constraint("Symmetric", 1, 2, 32, 2, -2),
    Sketcher.Constraint("Symmetric", 3, 2, 34, 2, -2),
    Sketcher.Constraint("Symmetric", 5, 2, 36, 2, -2),
    Sketcher.Constraint("Symmetric", 7, 2, 38, 2, -2),
    Sketcher.Constraint("Symmetric", 9, 2, 40, 2, -2),
    Sketcher.Constraint("Symmetric", 11, 2, 42, 2, -2),
    Sketcher.Constraint("Symmetric", 17, 2, 44, 2, -2),
    Sketcher.Constraint("Symmetric", 19, 2, 46, 2, -2),
    Sketcher.Constraint("Vertical", 3, 2, 8, 2),
    Sketcher.Constraint("Vertical", 2, 2, 9, 2),
    Sketcher.Constraint("Vertical", 15, 2, 16, 2),
    Sketcher.Constraint("Vertical", 14, 2, 17, 2),
    Sketcher.Constraint("Vertical", 23, 2, 24, 2),
    Sketcher.Constraint("Vertical", 22, 2, 25, 2),
    Sketcher.Constraint("Equal", 11, 13),
    Sketcher.Constraint("Equal", 19, 21),
    Sketcher.Constraint("Equal", 39, 0),
    Sketcher.Constraint("Equal", 47, 4),
    Sketcher.Constraint("Equal", 2, 8),
    Sketcher.Constraint("Equal", 10, 12),
    Sketcher.Constraint("Equal", 14, 16),
    Sketcher.Constraint("Equal", 18, 20),
    Sketcher.Constraint("Equal", 22, 24),
    Sketcher.Constraint("DistanceX", 1, 1, 1, 2, 3.0),
    Sketcher.Constraint("DistanceX", 5, 1, 5, 2, 10.0),
    Sketcher.Constraint("DistanceX", 12, 2, 0, 2, 70.0),
    Sketcher.Constraint("DistanceX", 20, 2, 16, 2, 70.0),
    Sketcher.Constraint("DistanceX", 28, 2, 24, 2, 70.0),
    Sketcher.Constraint("DistanceY", -1, 1, 12, 2, 101.514032),
    Sketcher.Constraint("DistanceY", 4, 2, 2, 2, 59.371642),
    Sketcher.Constraint("DistanceY", 8, 2, 7, 2, 59.371642),
    Sketcher.Constraint("DistanceY", 20, 2, 16, 2, 3.01029),
    Sketcher.Constraint("DistanceY", 12, 2, 24, 2, 3.01029),
    Sketcher.Constraint("DistanceY", -1, 1, 0, 2, 70.874036),
    Sketcher.Constraint("DistanceX", -1, 1, 4, 2, 169.473517),
    Sketcher.Constraint("DistanceY", 16, 2, -1, 1, 91.509244),
])
sketch2.setExpression("Constraints[121]", "Params.sketch2_width")
sketch2.setExpression("Constraints[122]", "Params.sketch2_width2")
pocket1 = body.newObject("PartDesign::Pocket", "Pocket")
pocket1.Profile = sketch2
pocket1.Type = "ThroughAll"
pocket1.Reversed = True

doc.recompute()
